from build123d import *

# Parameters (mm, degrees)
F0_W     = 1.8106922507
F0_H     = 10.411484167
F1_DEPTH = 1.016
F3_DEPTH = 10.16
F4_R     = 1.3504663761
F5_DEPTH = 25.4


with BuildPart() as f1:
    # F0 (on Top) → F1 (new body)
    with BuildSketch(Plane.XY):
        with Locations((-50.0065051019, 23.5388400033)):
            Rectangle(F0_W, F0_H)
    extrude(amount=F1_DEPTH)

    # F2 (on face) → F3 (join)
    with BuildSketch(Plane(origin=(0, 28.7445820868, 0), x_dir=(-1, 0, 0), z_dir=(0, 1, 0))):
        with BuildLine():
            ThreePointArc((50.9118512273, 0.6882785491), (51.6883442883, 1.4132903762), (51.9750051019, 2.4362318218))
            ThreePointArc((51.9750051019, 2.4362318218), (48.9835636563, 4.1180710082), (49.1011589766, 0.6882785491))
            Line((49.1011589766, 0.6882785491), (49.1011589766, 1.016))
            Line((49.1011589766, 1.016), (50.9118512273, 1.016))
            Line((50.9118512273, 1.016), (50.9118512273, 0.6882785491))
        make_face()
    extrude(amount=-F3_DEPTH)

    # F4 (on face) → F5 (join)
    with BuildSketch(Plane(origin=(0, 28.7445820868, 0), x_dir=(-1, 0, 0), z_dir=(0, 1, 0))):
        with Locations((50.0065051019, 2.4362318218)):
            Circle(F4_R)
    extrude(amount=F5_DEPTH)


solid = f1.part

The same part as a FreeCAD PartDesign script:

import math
import FreeCAD as App
import Part
import Sketcher
from FreeCAD import Vector
Q = App.Units.Quantity

doc = App.newDocument("Part")
params = doc.addObject("Spreadsheet::Sheet", "Params")
for row, (alias, value) in enumerate([
    ("pad1_length", "0.04 in"),
    ("pad2_length", "0.4 in"),
    ("pad3_length", "1 in"),
], start=1):
    params.set(f"A{row}", alias)
    params.set(f"B{row}", "=" + value)
    params.setAlias(f"B{row}", alias)

body = doc.addObject("PartDesign::Body", "Body")

sketch1 = body.newObject("Sketcher::SketchObject", "Sketch")
sketch1.AttachmentSupport = (doc.getObject("XY_Plane"), [""])
sketch1.MapMode = "FlatFace"
sketch1.addGeometry(Part.LineSegment(Vector(-50.9, 28.7, 0), Vector(-50.9, 18.3, 0)), False)
sketch1.addGeometry(Part.LineSegment(Vector(-50.9, 18.3, 0), Vector(-49.1, 18.3, 0)), False)
sketch1.addGeometry(Part.LineSegment(Vector(-49.1, 18.3, 0), Vector(-49.1, 28.7, 0)), False)
sketch1.addGeometry(Part.LineSegment(Vector(-49.1, 28.7, 0), Vector(-50.9, 28.7, 0)), False)
sketch1.addConstraint(Sketcher.Constraint("Coincident", 0, 2, 1, 1))
sketch1.addConstraint(Sketcher.Constraint("Coincident", 1, 2, 2, 1))
sketch1.addConstraint(Sketcher.Constraint("Coincident", 2, 2, 3, 1))
sketch1.addConstraint(Sketcher.Constraint("Coincident", 3, 2, 0, 1))
sketch1.addConstraint(Sketcher.Constraint("Vertical", 0))
sketch1.addConstraint(Sketcher.Constraint("Horizontal", 1))
sketch1.addConstraint(Sketcher.Constraint("Vertical", 2))
sketch1.addConstraint(Sketcher.Constraint("Horizontal", 3))
sketch1.addConstraint(Sketcher.Constraint("DistanceX", 1, 1, 1, 2, Q("1.810692 mm")))
sketch1.addConstraint(Sketcher.Constraint("DistanceY", 0, 2, 0, 1, Q("10.411484 mm")))
sketch1.addConstraint(Sketcher.Constraint("DistanceX", 0, 2, -1, 1, Q("50.911851 mm")))
sketch1.addConstraint(Sketcher.Constraint("DistanceY", -1, 1, 0, 2, Q("18.333098 mm")))
pad1 = body.newObject("PartDesign::Pad", "Pad")
pad1.Profile = sketch1
pad1.setExpression("Length", "Params.pad1_length")

sketch2 = body.newObject("Sketcher::SketchObject", "Sketch001")
sketch2.AttachmentSupport = (doc.getObject("XZ_Plane"), [""])
sketch2.MapMode = "FlatFace"
sketch2.AttachmentOffset = App.Placement(Vector(0, 0, -28.744582), App.Rotation())
sketch2.addGeometry(Part.ArcOfCircle(Part.Circle(Vector(-50.01, 2.44, 0), Vector(0, 0, 1), 1.97), math.radians(180), math.radians(243)), False)
sketch2.addGeometry(Part.ArcOfCircle(Part.Circle(Vector(-50.01, 2.44, 0), Vector(0, 0, 1), 1.97), math.radians(-63), math.radians(180)), False)
sketch2.addGeometry(Part.LineSegment(Vector(-49.1, 0.69, 0), Vector(-49.1, 1.02, 0)), False)
sketch2.addGeometry(Part.LineSegment(Vector(-49.1, 1.02, 0), Vector(-50.91, 1.02, 0)), False)
sketch2.addGeometry(Part.LineSegment(Vector(-50.91, 1.02, 0), Vector(-50.91, 0.69, 0)), False)
sketch2.addConstraint(Sketcher.Constraint("Tangent", 0, 1, 1, 2))
sketch2.addConstraint(Sketcher.Constraint("Coincident", 1, 1, 2, 1))
sketch2.addConstraint(Sketcher.Constraint("Coincident", 2, 2, 3, 1))
sketch2.addConstraint(Sketcher.Constraint("Coincident", 3, 2, 4, 1))
sketch2.addConstraint(Sketcher.Constraint("Coincident", 4, 2, 0, 2))
sketch2.addConstraint(Sketcher.Constraint("Vertical", 2))
sketch2.addConstraint(Sketcher.Constraint("Horizontal", 3))
sketch2.addConstraint(Sketcher.Constraint("Vertical", 4))
sketch2.addConstraint(Sketcher.Constraint("Equal", 0, 1))
sketch2.addConstraint(Sketcher.Constraint("Horizontal", 1, 3, 0, 1))
sketch2.addConstraint(Sketcher.Constraint("Horizontal", 1, 1, 4, 2))
sketch2.addConstraint(Sketcher.Constraint("Radius", 0, Q("0.0775 in")))
sketch2.addConstraint(Sketcher.Constraint("DistanceY", -1, 1, 2, 2, Q("0.04 in")))
sketch2.addConstraint(Sketcher.Constraint("DistanceY", 2, 1, 2, 2, Q("0.327721 mm")))
sketch2.addConstraint(Sketcher.Constraint("DistanceX", 3, 2, 3, 1, Q("1.810692 mm")))
sketch2.addConstraint(Sketcher.Constraint("DistanceX", 1, 1, -1, 1, Q("49.101159 mm")))
pad2 = body.newObject("PartDesign::Pad", "Pad001")
pad2.Profile = sketch2
pad2.setExpression("Length", "Params.pad2_length")

sketch3 = body.newObject("Sketcher::SketchObject", "Sketch002")
sketch3.AttachmentSupport = (doc.getObject("XZ_Plane"), [""])
sketch3.MapMode = "FlatFace"
sketch3.AttachmentOffset = App.Placement(Vector(0, 0, -28.744582), App.Rotation())
sketch3.addGeometry(Part.Circle(Vector(-50, 2.4, 0), Vector(0, 0, 1), 1.4), False)
sketch3.addConstraint(Sketcher.Constraint("Diameter", 0, Q("2.700933 mm")))
sketch3.addConstraint(Sketcher.Constraint("DistanceY", -1, 1, 0, 3, Q("2.436232 mm")))
sketch3.addConstraint(Sketcher.Constraint("DistanceX", 0, 3, -1, 1, Q("50.006505 mm")))
pad3 = body.newObject("PartDesign::Pad", "Pad002")
pad3.Profile = sketch3
pad3.setExpression("Length", "Params.pad3_length")
pad3.Reversed = True

doc.recompute()
